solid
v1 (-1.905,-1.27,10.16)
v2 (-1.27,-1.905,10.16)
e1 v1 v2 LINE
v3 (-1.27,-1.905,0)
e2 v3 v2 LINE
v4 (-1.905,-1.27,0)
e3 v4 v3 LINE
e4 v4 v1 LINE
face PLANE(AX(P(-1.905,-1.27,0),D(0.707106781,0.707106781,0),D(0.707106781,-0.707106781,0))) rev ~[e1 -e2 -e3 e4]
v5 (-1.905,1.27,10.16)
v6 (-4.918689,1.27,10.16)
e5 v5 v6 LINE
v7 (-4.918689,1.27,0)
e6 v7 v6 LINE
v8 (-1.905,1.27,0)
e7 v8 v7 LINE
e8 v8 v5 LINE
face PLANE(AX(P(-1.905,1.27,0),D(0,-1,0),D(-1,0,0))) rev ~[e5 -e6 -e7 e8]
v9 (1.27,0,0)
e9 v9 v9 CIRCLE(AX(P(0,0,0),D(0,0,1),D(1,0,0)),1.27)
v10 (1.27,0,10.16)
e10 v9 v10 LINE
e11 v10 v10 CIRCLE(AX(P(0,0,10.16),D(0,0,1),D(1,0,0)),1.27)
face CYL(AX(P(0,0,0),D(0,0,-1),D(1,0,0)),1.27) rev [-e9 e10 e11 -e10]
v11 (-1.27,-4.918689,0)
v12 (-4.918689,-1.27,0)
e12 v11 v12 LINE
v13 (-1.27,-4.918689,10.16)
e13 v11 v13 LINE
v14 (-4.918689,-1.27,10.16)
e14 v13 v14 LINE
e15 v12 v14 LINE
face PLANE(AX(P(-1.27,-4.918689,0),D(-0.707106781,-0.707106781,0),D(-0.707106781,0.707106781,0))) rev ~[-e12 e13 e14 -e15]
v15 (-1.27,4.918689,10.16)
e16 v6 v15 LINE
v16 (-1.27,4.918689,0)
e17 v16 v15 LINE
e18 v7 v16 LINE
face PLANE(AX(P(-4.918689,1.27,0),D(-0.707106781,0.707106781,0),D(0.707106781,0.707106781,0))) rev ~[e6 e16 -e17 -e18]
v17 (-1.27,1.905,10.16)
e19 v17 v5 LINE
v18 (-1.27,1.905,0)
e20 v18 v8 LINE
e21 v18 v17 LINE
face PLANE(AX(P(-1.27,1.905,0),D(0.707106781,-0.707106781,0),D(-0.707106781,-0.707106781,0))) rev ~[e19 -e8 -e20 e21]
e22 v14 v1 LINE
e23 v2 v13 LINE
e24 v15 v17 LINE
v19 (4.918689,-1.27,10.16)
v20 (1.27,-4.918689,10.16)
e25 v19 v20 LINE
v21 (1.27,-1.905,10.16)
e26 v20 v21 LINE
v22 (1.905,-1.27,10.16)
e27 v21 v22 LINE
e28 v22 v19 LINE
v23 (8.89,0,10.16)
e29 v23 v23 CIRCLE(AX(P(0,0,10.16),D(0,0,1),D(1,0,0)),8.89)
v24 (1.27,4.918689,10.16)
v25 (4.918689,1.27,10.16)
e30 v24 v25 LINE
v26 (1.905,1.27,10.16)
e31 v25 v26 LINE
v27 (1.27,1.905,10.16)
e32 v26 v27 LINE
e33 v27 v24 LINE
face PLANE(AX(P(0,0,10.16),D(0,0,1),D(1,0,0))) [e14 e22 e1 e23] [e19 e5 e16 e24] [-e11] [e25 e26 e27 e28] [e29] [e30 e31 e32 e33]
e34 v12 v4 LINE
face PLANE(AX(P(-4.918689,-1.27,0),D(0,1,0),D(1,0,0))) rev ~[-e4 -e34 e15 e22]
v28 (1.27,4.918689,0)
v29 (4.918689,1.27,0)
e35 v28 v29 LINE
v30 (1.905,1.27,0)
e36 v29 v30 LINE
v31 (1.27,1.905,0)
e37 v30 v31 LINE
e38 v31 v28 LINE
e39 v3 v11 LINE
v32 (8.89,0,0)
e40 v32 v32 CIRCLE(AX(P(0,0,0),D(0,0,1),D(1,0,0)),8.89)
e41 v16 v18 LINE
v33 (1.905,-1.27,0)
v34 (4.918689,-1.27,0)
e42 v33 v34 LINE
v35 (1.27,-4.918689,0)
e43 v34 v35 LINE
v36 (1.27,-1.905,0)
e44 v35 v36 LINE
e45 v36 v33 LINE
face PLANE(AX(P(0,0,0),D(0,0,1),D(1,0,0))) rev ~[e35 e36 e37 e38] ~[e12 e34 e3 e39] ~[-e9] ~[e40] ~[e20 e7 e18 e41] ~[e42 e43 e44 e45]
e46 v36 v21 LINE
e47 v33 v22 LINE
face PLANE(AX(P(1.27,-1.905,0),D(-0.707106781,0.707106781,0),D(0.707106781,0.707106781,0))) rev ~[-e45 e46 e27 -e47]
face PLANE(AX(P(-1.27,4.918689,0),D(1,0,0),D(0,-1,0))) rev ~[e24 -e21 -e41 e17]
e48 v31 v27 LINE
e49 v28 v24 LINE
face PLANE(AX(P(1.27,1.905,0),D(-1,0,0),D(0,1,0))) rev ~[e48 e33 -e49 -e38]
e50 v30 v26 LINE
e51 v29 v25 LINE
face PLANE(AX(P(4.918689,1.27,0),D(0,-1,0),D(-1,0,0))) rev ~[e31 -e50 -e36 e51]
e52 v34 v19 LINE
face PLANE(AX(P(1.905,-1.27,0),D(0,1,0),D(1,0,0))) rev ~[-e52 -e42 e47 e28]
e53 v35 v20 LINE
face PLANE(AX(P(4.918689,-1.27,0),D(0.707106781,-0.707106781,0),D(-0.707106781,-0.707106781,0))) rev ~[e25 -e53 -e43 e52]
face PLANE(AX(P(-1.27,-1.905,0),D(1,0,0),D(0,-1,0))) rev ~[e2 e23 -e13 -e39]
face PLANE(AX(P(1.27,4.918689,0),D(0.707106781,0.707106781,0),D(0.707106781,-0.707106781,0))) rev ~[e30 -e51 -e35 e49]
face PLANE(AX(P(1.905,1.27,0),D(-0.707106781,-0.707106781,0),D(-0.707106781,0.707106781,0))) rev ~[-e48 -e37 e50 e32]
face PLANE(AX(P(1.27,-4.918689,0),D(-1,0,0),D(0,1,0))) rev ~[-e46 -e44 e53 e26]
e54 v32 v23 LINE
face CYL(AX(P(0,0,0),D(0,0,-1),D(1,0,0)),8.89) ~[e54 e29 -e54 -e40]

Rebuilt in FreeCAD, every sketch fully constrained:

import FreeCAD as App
import Part
import Sketcher
from FreeCAD import Vector
Q = App.Units.Quantity


def add_polygon(sketch, points):
    """Adds a closed chain of lines whose ends are joined by coincident constraints."""
    first, n = sketch.GeometryCount, len(points)
    for a, b in zip(points, points[1:] + points[:1]):
        sketch.addGeometry(Part.LineSegment(App.Vector(*a, 0), App.Vector(*b, 0)), False)
    for i in range(n):
        sketch.addConstraint(Sketcher.Constraint("Coincident", first + i, 2, first + (i + 1) % n, 1))

doc = App.newDocument("Part")
body = doc.addObject("PartDesign::Body", "Body")

sketch1 = doc.addObject("Sketcher::SketchObject", "Sketch")
body.addObject(sketch1)
sketch1.AttachmentSupport = (doc.XY_Plane, [""])
sketch1.MapMode = "FlatFace"
sketch1.addGeometry(Part.Circle(Vector(0, 0, 0), Vector(0, 0, 1), 8.89), False)
add_polygon(sketch1, [(-1.27, -4.918689), (-4.918689, -1.27), (-1.905, -1.27), (-1.27, -1.905)])
add_polygon(sketch1, [(4.918689, -1.27), (1.27, -4.918689), (1.27, -1.905), (1.905, -1.27)])
add_polygon(sketch1, [(-1.905, 1.27), (-4.918689, 1.27), (-1.27, 4.918689), (-1.27, 1.905)])
sketch1.addGeometry(Part.Circle(Vector(0, 0, 0), Vector(0, 0, 1), 1.27), False)
add_polygon(sketch1, [(4.918689, 1.27), (1.905, 1.27), (1.27, 1.905), (1.27, 4.918689)])
sketch1.addConstraint([
    Sketcher.Constraint("Horizontal", 2),
    Sketcher.Constraint("Vertical", 4),
    Sketcher.Constraint("Vertical", 6),
    Sketcher.Constraint("Horizontal", 8),
    Sketcher.Constraint("Horizontal", 9),
    Sketcher.Constraint("Vertical", 11),
    Sketcher.Constraint("Horizontal", 14),
    Sketcher.Constraint("Vertical", 16),
    Sketcher.Constraint("Coincident", 0, 3, -1, 1),
    Sketcher.Constraint("Coincident", 13, 3, -1, 1),
    Sketcher.Constraint("Symmetric", 8, 2, 9, 2, -1, 1),
    Sketcher.Constraint("Symmetric", 5, 2, 10, 2, -1, 1),
    Sketcher.Constraint("Symmetric", 2, 2, 14, 2, -1, 1),
    Sketcher.Constraint("Symmetric", 3, 2, 15, 2, -1, 1),
    Sketcher.Constraint("Symmetric", 4, 2, 5, 2, -2),
    Sketcher.Constraint("Symmetric", 2, 2, 7, 2, -2),
    Sketcher.Constraint("Parallel", 1, 3),
    Sketcher.Constraint("Perpendicular", 3, 5),
    Sketcher.Constraint("Parallel", 5, 7),
    Sketcher.Constraint("Parallel", 10, 12),
    Sketcher.Constraint("Parallel", 15, 17),
    Sketcher.Constraint("Horizontal", 3, 2, 6, 2),
    Sketcher.Constraint("Horizontal", 11, 2, 15, 2),
    Sketcher.Constraint("Horizontal", 10, 2, 16, 2),
    Sketcher.Constraint("Diameter", 0, Q("0.7 in")),
    Sketcher.Constraint("Diameter", 13, Q("0.1 in")),
    Sketcher.Constraint("DistanceX", 4, 2, 5, 2, Q("0.1 in")),
    Sketcher.Constraint("DistanceY", 1, 2, 9, 2, Q("0.1 in")),
    Sketcher.Constraint("DistanceX", 2, 2, -1, 1, Q("0.075 in")),
    Sketcher.Constraint("DistanceX", 2, 1, 2, 2, Q("3.013689 mm")),
])
pad1 = doc.addObject("PartDesign::Pad", "Pad")
body.addObject(pad1)
pad1.Profile = sketch1
pad1.Length = Q("0.4 in")

doc.recompute()
